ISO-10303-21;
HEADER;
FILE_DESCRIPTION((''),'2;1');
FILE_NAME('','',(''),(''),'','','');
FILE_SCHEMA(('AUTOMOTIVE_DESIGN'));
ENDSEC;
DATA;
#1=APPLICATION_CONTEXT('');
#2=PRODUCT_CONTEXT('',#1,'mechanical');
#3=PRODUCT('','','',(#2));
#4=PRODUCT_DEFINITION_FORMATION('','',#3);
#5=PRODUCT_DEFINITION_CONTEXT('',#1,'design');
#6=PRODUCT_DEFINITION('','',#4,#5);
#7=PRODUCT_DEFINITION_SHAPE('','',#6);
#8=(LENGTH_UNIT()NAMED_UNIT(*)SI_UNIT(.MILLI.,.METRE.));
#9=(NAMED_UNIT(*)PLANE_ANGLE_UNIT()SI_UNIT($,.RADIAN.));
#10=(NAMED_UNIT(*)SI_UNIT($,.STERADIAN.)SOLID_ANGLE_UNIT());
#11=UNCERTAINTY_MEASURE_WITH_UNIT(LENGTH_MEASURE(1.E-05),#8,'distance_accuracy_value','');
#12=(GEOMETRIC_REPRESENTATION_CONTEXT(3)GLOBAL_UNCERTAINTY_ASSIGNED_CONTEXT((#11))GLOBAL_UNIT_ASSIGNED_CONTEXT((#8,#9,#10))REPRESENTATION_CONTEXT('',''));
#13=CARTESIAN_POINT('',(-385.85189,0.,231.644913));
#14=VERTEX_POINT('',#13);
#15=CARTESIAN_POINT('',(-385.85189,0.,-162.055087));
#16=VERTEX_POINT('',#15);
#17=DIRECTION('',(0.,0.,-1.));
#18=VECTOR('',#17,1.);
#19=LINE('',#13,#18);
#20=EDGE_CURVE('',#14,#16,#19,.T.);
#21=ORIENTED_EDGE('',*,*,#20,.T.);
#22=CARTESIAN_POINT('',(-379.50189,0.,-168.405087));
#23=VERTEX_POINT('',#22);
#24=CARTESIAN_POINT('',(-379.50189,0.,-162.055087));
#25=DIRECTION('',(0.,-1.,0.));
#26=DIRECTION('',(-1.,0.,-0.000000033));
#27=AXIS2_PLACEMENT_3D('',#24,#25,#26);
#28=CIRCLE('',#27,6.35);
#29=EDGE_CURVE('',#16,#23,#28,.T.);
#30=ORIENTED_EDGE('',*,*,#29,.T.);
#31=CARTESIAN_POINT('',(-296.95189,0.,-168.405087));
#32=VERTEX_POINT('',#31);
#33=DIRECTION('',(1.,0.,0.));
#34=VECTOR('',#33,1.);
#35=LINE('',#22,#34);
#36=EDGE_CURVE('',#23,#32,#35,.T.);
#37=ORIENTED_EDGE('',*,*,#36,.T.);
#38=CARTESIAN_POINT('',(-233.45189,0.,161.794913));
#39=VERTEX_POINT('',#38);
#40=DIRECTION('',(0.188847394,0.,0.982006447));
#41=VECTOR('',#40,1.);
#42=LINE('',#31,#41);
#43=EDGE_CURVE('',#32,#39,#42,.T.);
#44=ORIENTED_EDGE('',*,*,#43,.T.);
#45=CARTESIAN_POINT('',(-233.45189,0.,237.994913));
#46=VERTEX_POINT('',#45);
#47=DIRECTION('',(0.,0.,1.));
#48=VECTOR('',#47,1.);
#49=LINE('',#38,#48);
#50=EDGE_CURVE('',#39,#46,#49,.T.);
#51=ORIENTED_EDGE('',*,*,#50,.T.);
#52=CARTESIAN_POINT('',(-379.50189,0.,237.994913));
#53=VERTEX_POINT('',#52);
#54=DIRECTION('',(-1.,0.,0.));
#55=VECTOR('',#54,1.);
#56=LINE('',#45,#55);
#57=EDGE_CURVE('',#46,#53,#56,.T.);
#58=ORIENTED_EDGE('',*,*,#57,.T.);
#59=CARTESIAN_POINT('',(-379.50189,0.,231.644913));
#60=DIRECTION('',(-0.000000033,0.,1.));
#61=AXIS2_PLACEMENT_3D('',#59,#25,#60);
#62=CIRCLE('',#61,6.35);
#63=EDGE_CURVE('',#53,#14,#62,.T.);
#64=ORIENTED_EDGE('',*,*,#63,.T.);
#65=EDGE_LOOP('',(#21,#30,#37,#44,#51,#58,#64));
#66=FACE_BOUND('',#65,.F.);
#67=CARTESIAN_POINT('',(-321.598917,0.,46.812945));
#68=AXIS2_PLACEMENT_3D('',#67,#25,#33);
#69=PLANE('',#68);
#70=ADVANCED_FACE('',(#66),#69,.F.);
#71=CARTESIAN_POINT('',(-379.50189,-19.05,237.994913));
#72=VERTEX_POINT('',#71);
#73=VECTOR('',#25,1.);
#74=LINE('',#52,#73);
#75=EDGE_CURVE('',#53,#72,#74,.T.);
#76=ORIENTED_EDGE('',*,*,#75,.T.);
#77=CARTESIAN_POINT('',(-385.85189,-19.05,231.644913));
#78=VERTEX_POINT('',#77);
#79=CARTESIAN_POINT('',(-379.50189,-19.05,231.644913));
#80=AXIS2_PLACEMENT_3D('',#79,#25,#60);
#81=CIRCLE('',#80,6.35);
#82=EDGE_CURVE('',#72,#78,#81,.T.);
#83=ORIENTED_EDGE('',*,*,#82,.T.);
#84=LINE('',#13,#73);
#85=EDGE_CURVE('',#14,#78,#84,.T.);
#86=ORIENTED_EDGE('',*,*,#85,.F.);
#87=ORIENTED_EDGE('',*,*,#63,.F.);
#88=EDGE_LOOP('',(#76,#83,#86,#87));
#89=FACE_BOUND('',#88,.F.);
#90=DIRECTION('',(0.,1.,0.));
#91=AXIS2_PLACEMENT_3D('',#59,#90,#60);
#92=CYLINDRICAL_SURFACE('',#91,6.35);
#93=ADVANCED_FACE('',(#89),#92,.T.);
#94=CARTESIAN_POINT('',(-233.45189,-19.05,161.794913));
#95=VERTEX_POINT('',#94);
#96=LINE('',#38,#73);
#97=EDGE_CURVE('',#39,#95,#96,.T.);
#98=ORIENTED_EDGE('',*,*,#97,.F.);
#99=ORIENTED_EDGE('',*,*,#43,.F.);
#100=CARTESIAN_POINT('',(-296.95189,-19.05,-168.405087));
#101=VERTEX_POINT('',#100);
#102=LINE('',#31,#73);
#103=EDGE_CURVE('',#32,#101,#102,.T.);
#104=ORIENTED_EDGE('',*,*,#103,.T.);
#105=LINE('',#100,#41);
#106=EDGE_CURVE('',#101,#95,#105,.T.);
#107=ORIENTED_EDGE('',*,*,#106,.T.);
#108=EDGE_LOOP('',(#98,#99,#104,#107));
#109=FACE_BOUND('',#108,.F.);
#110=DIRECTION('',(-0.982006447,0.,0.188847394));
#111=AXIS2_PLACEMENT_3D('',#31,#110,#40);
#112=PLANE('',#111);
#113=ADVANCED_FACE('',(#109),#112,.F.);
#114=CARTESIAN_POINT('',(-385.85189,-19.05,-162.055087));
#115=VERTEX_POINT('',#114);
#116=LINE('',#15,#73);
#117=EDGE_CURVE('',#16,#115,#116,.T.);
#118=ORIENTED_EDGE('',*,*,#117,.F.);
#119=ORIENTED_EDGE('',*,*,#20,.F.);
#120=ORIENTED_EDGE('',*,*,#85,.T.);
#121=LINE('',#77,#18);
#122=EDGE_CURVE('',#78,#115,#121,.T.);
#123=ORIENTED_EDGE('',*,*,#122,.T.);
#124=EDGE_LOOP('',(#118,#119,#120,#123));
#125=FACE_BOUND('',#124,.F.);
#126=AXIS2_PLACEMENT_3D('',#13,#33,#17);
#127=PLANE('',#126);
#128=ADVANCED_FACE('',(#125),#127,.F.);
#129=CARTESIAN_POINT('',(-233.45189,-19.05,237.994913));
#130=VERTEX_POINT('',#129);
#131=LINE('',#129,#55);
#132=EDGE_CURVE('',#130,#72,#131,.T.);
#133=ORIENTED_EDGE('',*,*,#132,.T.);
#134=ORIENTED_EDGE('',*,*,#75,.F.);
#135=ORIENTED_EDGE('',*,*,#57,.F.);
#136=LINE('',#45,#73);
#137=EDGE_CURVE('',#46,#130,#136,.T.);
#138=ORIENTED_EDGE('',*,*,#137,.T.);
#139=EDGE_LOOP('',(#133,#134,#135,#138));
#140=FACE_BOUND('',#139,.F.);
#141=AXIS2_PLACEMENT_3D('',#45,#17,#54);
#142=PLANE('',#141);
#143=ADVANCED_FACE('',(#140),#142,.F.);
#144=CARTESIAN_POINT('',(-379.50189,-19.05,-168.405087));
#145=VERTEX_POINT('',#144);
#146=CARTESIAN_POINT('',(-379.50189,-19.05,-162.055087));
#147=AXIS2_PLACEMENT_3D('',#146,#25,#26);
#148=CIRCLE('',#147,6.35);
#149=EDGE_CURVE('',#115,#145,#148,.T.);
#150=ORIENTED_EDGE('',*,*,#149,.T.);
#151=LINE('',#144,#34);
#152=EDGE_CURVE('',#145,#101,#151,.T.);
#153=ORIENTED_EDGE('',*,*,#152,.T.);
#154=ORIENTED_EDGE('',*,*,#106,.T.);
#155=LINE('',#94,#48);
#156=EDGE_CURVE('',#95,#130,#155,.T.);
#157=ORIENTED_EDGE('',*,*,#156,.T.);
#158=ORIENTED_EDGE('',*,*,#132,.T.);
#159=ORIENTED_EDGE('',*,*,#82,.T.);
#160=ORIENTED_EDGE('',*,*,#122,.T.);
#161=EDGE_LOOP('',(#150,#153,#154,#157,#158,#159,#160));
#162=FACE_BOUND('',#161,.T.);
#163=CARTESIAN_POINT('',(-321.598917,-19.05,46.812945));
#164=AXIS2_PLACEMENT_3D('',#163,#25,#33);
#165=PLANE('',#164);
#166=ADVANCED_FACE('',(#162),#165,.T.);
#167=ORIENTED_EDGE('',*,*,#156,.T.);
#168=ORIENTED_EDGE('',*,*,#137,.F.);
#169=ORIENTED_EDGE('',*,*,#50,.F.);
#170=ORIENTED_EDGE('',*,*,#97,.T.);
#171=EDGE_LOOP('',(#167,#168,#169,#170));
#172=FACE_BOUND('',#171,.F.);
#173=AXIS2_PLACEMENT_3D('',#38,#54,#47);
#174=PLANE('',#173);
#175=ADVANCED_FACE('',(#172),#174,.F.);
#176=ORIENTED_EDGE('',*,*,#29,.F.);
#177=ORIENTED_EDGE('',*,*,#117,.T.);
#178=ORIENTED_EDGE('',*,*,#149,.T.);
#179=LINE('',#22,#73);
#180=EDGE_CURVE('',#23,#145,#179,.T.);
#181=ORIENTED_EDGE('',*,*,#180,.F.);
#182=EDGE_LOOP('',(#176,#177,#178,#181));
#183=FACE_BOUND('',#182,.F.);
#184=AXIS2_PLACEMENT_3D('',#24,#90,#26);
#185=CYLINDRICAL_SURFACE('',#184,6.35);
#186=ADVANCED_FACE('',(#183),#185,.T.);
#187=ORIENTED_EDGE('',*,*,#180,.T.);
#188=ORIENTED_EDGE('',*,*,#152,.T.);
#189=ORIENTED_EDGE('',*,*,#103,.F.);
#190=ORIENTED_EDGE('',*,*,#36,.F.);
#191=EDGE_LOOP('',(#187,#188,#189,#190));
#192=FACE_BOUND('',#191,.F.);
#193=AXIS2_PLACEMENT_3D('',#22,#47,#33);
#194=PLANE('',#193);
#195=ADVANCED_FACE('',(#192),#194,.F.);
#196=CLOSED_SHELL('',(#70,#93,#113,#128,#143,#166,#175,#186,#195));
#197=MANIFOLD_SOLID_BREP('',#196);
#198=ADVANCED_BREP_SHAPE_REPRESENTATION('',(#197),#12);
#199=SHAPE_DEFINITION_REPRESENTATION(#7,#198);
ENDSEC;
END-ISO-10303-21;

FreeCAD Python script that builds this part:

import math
import FreeCAD as App
import Part
import Sketcher
Q = App.Units.Quantity

doc = App.newDocument("Part")
body = doc.addObject("PartDesign::Body", "Body")

# Sketch on XZ plane
sketch1 = body.newObject("Sketcher::SketchObject", "Sketch")
sketch1.AttachmentSupport = (doc.getObject("XZ_Plane"), [""])
sketch1.MapMode = "FlatFace"
sketch1.addGeometry([
    Part.LineSegment(App.Vector(-233.45189, 237.994913, 0), App.Vector(-379.50189, 237.994913, 0)),  # 0
    Part.ArcOfCircle(Part.Circle(App.Vector(-379.50189, 231.644913, 0), App.Vector(0, 0, 1), 6.35), math.radians(90.000002), math.radians(179.999998)),  # 1
    Part.LineSegment(App.Vector(-385.85189, 231.644913, 0), App.Vector(-385.85189, -162.055087, 0)),  # 2
    Part.ArcOfCircle(Part.Circle(App.Vector(-379.50189, -162.055087, 0), App.Vector(0, 0, 1), 6.35), math.radians(-179.999998), math.radians(-90.000002)),  # 3
    Part.LineSegment(App.Vector(-379.50189, -168.405087, 0), App.Vector(-296.95189, -168.405087, 0)),  # 4
    Part.LineSegment(App.Vector(-296.95189, -168.405087, 0), App.Vector(-233.45189, 161.794913, 0)),  # 5
    Part.LineSegment(App.Vector(-233.45189, 161.794913, 0), App.Vector(-233.45189, 237.994913, 0)),  # 6
], False)
sketch1.addConstraint([
    Sketcher.Constraint("Tangent", 0, 2, 1, 1),
    Sketcher.Constraint("Tangent", 1, 2, 2, 1),
    Sketcher.Constraint("Tangent", 2, 2, 3, 1),
    Sketcher.Constraint("Tangent", 3, 2, 4, 1),
    Sketcher.Constraint("Coincident", 4, 2, 5, 1),
    Sketcher.Constraint("Coincident", 5, 2, 6, 1),
    Sketcher.Constraint("Coincident", 6, 2, 0, 1),
    Sketcher.Constraint("Horizontal", 0),
    Sketcher.Constraint("Vertical", 2),
    Sketcher.Constraint("Horizontal", 4),
    Sketcher.Constraint("Vertical", 6),
    Sketcher.Constraint("Equal", 1, 3),
    Sketcher.Constraint("DistanceY", 6, 1, 6, 2, Q("3 in")),
    Sketcher.Constraint("Radius", 1, Q("0.25 in")),
    Sketcher.Constraint("DistanceY", 2, 2, 2, 1, Q("15.5 in")),
    Sketcher.Constraint("DistanceX", 1, 2, 5, 2, Q("6 in")),
    Sketcher.Constraint("DistanceX", 4, 1, 4, 2, Q("3.25 in")),
    Sketcher.Constraint("DistanceX", 1, 3, -1, 1, 379.50189),
    Sketcher.Constraint("DistanceY", -1, 1, 1, 3, 231.644913),
])
pad1 = body.newObject("PartDesign::Pad", "Pad")
pad1.Profile = sketch1
pad1.Length = Q("0.75 in")

doc.recompute()
